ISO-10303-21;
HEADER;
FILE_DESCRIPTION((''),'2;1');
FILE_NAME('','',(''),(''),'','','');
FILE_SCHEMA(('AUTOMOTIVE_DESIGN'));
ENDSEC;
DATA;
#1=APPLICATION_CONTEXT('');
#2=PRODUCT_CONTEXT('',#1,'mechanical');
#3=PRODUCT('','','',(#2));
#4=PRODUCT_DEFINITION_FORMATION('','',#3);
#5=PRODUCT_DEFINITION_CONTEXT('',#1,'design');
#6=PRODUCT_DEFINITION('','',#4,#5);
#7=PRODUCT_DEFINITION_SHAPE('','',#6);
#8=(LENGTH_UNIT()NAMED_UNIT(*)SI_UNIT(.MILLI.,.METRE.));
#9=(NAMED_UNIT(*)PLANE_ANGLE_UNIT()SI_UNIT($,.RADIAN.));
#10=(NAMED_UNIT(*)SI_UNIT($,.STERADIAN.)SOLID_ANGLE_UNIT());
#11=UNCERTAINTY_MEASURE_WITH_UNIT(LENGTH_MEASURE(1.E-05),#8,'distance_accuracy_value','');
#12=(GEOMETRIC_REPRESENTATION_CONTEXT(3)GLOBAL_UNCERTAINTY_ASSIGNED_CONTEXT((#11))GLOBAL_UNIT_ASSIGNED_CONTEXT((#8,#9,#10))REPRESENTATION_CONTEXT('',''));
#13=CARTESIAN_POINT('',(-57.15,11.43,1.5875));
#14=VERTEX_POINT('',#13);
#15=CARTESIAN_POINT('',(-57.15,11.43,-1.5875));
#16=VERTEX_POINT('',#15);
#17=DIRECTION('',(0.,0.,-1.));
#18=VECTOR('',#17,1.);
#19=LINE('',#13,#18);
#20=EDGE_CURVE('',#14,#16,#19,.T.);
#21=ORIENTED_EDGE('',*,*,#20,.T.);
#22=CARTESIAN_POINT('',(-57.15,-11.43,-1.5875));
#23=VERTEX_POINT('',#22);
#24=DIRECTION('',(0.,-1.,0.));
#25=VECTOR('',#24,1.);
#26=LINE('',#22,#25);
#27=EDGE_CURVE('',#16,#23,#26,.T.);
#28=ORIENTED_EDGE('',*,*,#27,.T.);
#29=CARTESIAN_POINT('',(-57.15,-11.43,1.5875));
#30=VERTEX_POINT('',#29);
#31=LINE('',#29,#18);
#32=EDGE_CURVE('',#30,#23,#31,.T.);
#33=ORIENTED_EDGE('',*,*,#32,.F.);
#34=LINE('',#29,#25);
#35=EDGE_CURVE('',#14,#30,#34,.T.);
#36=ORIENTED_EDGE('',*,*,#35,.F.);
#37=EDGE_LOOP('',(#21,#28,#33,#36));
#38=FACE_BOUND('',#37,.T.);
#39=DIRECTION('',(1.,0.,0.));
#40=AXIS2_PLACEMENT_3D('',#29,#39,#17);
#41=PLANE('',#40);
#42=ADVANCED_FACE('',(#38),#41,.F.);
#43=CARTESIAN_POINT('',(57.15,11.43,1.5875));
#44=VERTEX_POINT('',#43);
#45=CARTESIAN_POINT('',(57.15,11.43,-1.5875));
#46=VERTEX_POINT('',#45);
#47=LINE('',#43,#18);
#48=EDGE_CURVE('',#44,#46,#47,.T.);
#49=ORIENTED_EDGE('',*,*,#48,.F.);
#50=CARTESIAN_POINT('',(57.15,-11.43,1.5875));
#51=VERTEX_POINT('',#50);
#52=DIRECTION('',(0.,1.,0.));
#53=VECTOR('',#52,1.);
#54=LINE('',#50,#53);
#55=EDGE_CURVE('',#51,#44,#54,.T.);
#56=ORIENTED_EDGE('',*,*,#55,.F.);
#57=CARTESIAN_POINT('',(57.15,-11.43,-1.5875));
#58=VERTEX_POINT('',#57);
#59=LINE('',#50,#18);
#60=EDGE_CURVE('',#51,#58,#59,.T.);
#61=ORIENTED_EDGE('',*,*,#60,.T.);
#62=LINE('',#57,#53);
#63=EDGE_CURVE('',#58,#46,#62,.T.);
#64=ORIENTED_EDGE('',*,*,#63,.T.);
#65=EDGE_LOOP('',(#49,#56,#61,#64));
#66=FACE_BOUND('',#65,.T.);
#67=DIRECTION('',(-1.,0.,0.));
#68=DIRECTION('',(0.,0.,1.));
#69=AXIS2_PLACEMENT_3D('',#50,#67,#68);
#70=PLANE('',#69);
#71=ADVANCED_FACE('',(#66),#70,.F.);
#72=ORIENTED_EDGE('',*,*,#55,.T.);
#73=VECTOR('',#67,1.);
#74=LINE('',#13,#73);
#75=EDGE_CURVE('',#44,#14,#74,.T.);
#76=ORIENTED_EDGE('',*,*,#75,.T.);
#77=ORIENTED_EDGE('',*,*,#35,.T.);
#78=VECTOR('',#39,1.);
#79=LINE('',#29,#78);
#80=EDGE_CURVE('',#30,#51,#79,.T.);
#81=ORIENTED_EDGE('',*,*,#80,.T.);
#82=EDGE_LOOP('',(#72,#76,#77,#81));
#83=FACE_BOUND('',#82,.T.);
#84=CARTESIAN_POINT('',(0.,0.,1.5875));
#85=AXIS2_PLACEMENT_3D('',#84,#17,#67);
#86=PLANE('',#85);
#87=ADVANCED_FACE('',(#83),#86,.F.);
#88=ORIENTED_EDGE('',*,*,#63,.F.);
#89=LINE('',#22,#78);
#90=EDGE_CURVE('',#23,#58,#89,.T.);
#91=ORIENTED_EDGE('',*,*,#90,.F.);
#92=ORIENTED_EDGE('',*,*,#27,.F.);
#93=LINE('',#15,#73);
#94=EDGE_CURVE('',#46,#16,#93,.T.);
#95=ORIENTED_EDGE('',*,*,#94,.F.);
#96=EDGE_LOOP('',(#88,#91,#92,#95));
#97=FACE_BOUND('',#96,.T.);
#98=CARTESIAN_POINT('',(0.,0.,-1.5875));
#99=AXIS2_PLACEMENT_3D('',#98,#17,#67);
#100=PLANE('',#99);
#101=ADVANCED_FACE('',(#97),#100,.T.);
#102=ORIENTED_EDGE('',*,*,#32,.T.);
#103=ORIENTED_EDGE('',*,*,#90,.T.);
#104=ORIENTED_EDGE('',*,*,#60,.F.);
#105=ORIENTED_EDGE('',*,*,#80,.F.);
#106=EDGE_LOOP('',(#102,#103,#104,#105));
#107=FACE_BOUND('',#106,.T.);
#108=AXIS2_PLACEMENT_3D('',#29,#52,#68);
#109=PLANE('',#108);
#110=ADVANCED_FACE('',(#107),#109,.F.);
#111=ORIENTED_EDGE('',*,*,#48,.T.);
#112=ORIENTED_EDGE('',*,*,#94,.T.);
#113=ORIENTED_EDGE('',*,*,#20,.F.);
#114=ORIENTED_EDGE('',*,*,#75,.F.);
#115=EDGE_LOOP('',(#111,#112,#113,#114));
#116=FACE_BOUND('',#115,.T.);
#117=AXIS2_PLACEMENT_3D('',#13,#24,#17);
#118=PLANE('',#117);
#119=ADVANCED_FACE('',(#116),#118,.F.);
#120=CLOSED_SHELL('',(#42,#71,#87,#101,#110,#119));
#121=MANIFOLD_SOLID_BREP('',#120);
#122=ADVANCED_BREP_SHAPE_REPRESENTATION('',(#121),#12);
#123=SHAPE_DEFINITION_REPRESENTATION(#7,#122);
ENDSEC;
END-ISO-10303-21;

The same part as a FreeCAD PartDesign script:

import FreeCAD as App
import Part
import Sketcher
Q = App.Units.Quantity

doc = App.newDocument("Part")
body = doc.addObject("PartDesign::Body", "Body")

sketch1 = body.newObject("Sketcher::SketchObject", "Sketch")
sketch1.AttachmentSupport = (doc.getObject("XY_Plane"), [""])
sketch1.MapMode = "FlatFace"
sketch1.addGeometry([
    Part.LineSegment(App.Vector(-57, 11, 0), App.Vector(-57, -11, 0)),
    Part.LineSegment(App.Vector(-57, -11, 0), App.Vector(57, -11, 0)),
    Part.LineSegment(App.Vector(57, -11, 0), App.Vector(57, 11, 0)),
    Part.LineSegment(App.Vector(57, 11, 0), App.Vector(-57, 11, 0)),
], False)
sketch1.addConstraint([
    Sketcher.Constraint("Coincident", 0, 2, 1, 1),
    Sketcher.Constraint("Coincident", 1, 2, 2, 1),
    Sketcher.Constraint("Coincident", 2, 2, 3, 1),
    Sketcher.Constraint("Coincident", 3, 2, 0, 1),
    Sketcher.Constraint("Vertical", 0),
    Sketcher.Constraint("Horizontal", 1),
    Sketcher.Constraint("Vertical", 2),
    Sketcher.Constraint("Horizontal", 3),
    Sketcher.Constraint("Symmetric", 0, 2, 2, 2, -1, 1),
    Sketcher.Constraint("DistanceX", 1, 1, 1, 2, Q("4.5 in")),
    Sketcher.Constraint("DistanceY", 0, 2, 0, 1, Q("0.9 in")),
])
pad1 = body.newObject("PartDesign::Pad", "Pad")
pad1.Profile = sketch1
pad1.Length = Q("0.125 in")
pad1.Midplane = True

doc.recompute()
